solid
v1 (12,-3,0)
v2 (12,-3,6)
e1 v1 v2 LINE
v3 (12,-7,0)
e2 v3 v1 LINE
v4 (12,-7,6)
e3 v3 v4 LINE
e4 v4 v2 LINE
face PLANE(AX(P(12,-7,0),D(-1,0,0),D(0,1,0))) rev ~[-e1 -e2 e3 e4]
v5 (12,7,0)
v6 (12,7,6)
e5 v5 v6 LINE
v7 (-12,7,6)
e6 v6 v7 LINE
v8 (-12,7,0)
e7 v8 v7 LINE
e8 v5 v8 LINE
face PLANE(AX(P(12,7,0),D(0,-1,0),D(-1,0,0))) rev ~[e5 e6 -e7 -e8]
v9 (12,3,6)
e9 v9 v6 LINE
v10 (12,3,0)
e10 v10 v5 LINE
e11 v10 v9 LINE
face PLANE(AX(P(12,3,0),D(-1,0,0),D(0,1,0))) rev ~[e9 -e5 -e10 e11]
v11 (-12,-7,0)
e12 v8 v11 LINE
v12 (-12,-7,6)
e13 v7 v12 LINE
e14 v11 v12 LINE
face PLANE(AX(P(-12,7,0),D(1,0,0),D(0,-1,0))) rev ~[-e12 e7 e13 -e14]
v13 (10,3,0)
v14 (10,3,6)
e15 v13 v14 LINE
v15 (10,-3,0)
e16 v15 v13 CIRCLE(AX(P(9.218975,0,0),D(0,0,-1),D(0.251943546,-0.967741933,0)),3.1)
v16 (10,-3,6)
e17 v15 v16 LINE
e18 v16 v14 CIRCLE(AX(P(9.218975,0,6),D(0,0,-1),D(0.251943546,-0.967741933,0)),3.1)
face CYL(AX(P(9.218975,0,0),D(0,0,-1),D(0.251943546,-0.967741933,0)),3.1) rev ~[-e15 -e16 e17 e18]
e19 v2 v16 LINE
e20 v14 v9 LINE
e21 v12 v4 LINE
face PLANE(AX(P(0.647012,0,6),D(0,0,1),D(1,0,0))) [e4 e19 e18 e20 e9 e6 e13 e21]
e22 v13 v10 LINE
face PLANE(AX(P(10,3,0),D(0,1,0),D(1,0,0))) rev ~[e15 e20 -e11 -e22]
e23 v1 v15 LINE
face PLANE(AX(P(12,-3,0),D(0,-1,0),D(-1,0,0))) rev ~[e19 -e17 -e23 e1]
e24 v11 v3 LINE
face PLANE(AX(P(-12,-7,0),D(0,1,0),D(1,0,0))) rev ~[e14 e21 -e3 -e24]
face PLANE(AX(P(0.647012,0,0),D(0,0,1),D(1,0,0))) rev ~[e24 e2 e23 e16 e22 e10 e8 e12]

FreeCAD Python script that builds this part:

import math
import FreeCAD as App
import Part
import Sketcher
Q = App.Units.Quantity

doc = App.newDocument("Part")
body = doc.addObject("PartDesign::Body", "Body")

# Sketch on XY plane
sketch1 = body.newObject("Sketcher::SketchObject", "Sketch")
sketch1.AttachmentSupport = (doc.getObject("XY_Plane"), [""])
sketch1.MapMode = "FlatFace"
sketch1.addGeometry(Part.LineSegment(App.Vector(-12, -7, 0), App.Vector(12, -7, 0)), False)
sketch1.addGeometry(Part.LineSegment(App.Vector(12, -7, 0), App.Vector(12, -3, 0)), False)
sketch1.addGeometry(Part.LineSegment(App.Vector(12, -3, 0), App.Vector(10, -3, 0)), False)
sketch1.addGeometry(Part.ArcOfCircle(Part.Circle(App.Vector(9.2, 0, 0), App.Vector(0, 0, 1), 3.1), math.radians(75), math.radians(285)), False)
sketch1.addGeometry(Part.LineSegment(App.Vector(10, 3, 0), App.Vector(12, 3, 0)), False)
sketch1.addGeometry(Part.LineSegment(App.Vector(12, 3, 0), App.Vector(12, 7, 0)), False)
sketch1.addGeometry(Part.LineSegment(App.Vector(12, 7, 0), App.Vector(-12, 7, 0)), False)
sketch1.addGeometry(Part.LineSegment(App.Vector(-12, 7, 0), App.Vector(-12, -7, 0)), False)
sketch1.addConstraint(Sketcher.Constraint("Coincident", 0, 2, 1, 1))
sketch1.addConstraint(Sketcher.Constraint("Coincident", 1, 2, 2, 1))
sketch1.addConstraint(Sketcher.Constraint("Coincident", 2, 2, 3, 2))
sketch1.addConstraint(Sketcher.Constraint("Coincident", 3, 1, 4, 1))
sketch1.addConstraint(Sketcher.Constraint("Coincident", 4, 2, 5, 1))
sketch1.addConstraint(Sketcher.Constraint("Coincident", 5, 2, 6, 1))
sketch1.addConstraint(Sketcher.Constraint("Coincident", 6, 2, 7, 1))
sketch1.addConstraint(Sketcher.Constraint("Coincident", 7, 2, 0, 1))
sketch1.addConstraint(Sketcher.Constraint("Horizontal", 0))
sketch1.addConstraint(Sketcher.Constraint("Vertical", 1))
sketch1.addConstraint(Sketcher.Constraint("Horizontal", 2))
sketch1.addConstraint(Sketcher.Constraint("Horizontal", 4))
sketch1.addConstraint(Sketcher.Constraint("Vertical", 5))
sketch1.addConstraint(Sketcher.Constraint("Horizontal", 6))
sketch1.addConstraint(Sketcher.Constraint("Vertical", 7))
sketch1.addConstraint(Sketcher.Constraint("Symmetric", 0, 2, 6, 2, -1, 1))
sketch1.addConstraint(Sketcher.Constraint("Symmetric", 2, 2, 3, 1, -1))
sketch1.addConstraint(Sketcher.Constraint("Vertical", 1, 2, 4, 2))
sketch1.addConstraint(Sketcher.Constraint("Radius", 3, Q("3.1 mm")))
sketch1.addConstraint(Sketcher.Constraint("DistanceX", 0, 1, 0, 2, Q("24 mm")))
sketch1.addConstraint(Sketcher.Constraint("DistanceX", 2, 2, 2, 1, Q("2 mm")))
sketch1.addConstraint(Sketcher.Constraint("DistanceY", 1, 1, 1, 2, Q("4 mm")))
sketch1.addConstraint(Sketcher.Constraint("DistanceY", 7, 2, 7, 1, Q("14 mm")))
pad1 = body.newObject("PartDesign::Pad", "Pad")
pad1.Profile = sketch1
pad1.Length = 6

doc.recompute()
